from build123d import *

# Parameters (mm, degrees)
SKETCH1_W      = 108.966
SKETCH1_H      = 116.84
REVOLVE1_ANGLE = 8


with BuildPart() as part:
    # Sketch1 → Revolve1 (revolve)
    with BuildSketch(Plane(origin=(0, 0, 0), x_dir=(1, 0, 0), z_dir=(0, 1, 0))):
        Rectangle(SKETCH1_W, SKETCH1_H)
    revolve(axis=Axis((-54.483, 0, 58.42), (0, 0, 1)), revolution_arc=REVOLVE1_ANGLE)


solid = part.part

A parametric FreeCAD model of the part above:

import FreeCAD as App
import Part
import Sketcher
Q = App.Units.Quantity

doc = App.newDocument("Part")
body = doc.addObject("PartDesign::Body", "Body")

# Sketch on XZ plane
sketch1 = body.newObject("Sketcher::SketchObject", "Sketch")
sketch1.AttachmentSupport = (doc.getObject("XZ_Plane"), [""])
sketch1.MapMode = "FlatFace"
sketch1.addGeometry(Part.LineSegment(App.Vector(-54.483, -58.42, 0), App.Vector(-54.483, 58.42, 0)), False)
sketch1.addGeometry(Part.LineSegment(App.Vector(-54.483, 58.42, 0), App.Vector(54.483, 58.42, 0)), False)
sketch1.addGeometry(Part.LineSegment(App.Vector(54.483, 58.42, 0), App.Vector(54.483, -58.42, 0)), False)
sketch1.addGeometry(Part.LineSegment(App.Vector(54.483, -58.42, 0), App.Vector(-54.483, -58.42, 0)), False)
sketch1.addGeometry(Part.LineSegment(App.Vector(-54.483, -58.42, 0), App.Vector(-54.483, 58.42, 0)), True)  # axis
sketch1.addConstraint(Sketcher.Constraint("Coincident", 0, 2, 1, 1))
sketch1.addConstraint(Sketcher.Constraint("Coincident", 1, 2, 2, 1))
sketch1.addConstraint(Sketcher.Constraint("Coincident", 2, 2, 3, 1))
sketch1.addConstraint(Sketcher.Constraint("Coincident", 3, 2, 0, 1))
sketch1.addConstraint(Sketcher.Constraint("Vertical", 0))
sketch1.addConstraint(Sketcher.Constraint("Horizontal", 1))
sketch1.addConstraint(Sketcher.Constraint("Vertical", 2))
sketch1.addConstraint(Sketcher.Constraint("Horizontal", 3))
sketch1.addConstraint(Sketcher.Constraint("Vertical", 4))
sketch1.addConstraint(Sketcher.Constraint("Coincident", 4, 1, 3, 2))
sketch1.addConstraint(Sketcher.Constraint("Symmetric", 0, 2, 2, 2, -1, 1))
sketch1.addConstraint(Sketcher.Constraint("Horizontal", 1, 2, 4, 2))
sketch1.addConstraint(Sketcher.Constraint("DistanceY", 0, 1, 0, 2, Q("4.6 in")))
sketch1.addConstraint(Sketcher.Constraint("DistanceX", 1, 1, 1, 2, Q("4.29 in")))
revolution = body.newObject("PartDesign::Revolution", "Revolution")
revolution.Profile = sketch1
revolution.ReferenceAxis = (sketch1, ["Axis0"])
revolution.Angle = 8

doc.recompute()
